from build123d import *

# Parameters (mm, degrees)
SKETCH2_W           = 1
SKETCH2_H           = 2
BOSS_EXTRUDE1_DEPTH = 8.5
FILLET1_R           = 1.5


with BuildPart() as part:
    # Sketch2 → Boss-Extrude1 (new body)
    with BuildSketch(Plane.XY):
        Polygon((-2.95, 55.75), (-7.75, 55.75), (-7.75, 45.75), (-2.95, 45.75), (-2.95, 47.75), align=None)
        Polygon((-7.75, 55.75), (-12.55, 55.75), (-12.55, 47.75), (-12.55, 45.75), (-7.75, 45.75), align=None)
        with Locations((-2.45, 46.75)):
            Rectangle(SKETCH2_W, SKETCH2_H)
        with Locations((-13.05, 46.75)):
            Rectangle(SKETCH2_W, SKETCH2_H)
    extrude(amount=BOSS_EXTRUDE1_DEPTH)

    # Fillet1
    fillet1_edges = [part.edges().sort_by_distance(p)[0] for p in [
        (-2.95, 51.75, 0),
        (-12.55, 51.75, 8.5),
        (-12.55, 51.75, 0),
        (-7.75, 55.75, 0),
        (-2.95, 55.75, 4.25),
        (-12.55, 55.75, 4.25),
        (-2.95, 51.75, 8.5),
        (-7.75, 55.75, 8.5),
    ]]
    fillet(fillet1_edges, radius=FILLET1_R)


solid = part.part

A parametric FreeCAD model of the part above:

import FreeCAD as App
import Part
import Sketcher


def edges_at(feature, points):
    """Names of the edges that pass closest to the given points."""
    edges = feature.Shape.Edges
    near = lambda p: min(range(len(edges)), key=lambda i: edges[i].distToShape(Part.Vertex(*p))[0])
    return sorted({f"Edge{near(p) + 1}" for p in points})

doc = App.newDocument("Part")
body = doc.addObject("PartDesign::Body", "Body")

sketch1 = doc.addObject("Sketcher::SketchObject", "Sketch")
body.addObject(sketch1)
sketch1.AttachmentSupport = (doc.XY_Plane, [""])
sketch1.MapMode = "FlatFace"
sketch1.addGeometry([
    Part.LineSegment(App.Vector(-3, 55.8, 0), App.Vector(-12.6, 55.8, 0)),
    Part.LineSegment(App.Vector(-12.6, 55.8, 0), App.Vector(-12.6, 47.8, 0)),
    Part.LineSegment(App.Vector(-12.6, 47.8, 0), App.Vector(-13.6, 47.8, 0)),
    Part.LineSegment(App.Vector(-13.6, 47.8, 0), App.Vector(-13.6, 45.8, 0)),
    Part.LineSegment(App.Vector(-13.6, 45.8, 0), App.Vector(-1.9, 45.8, 0)),
    Part.LineSegment(App.Vector(-1.9, 45.8, 0), App.Vector(-1.9, 47.8, 0)),
    Part.LineSegment(App.Vector(-1.9, 47.8, 0), App.Vector(-3, 47.8, 0)),
    Part.LineSegment(App.Vector(-3, 47.8, 0), App.Vector(-3, 55.8, 0)),
], False)
sketch1.addConstraint([
    Sketcher.Constraint("Coincident", 0, 2, 1, 1),
    Sketcher.Constraint("Coincident", 1, 2, 2, 1),
    Sketcher.Constraint("Coincident", 2, 2, 3, 1),
    Sketcher.Constraint("Coincident", 3, 2, 4, 1),
    Sketcher.Constraint("Coincident", 4, 2, 5, 1),
    Sketcher.Constraint("Coincident", 5, 2, 6, 1),
    Sketcher.Constraint("Coincident", 6, 2, 7, 1),
    Sketcher.Constraint("Coincident", 7, 2, 0, 1),
    Sketcher.Constraint("Horizontal", 0),
    Sketcher.Constraint("Vertical", 1),
    Sketcher.Constraint("Horizontal", 2),
    Sketcher.Constraint("Vertical", 3),
    Sketcher.Constraint("Horizontal", 4),
    Sketcher.Constraint("Vertical", 5),
    Sketcher.Constraint("Horizontal", 6),
    Sketcher.Constraint("Vertical", 7),
    Sketcher.Constraint("Horizontal", 2, 2, 5, 2),
    Sketcher.Constraint("Equal", 2, 6),
    Sketcher.Constraint("DistanceX", 2, 2, 2, 1, 1.0),
    Sketcher.Constraint("DistanceY", 1, 2, 1, 1, 8.0),
    Sketcher.Constraint("DistanceY", 3, 2, 3, 1, 2.0),
    Sketcher.Constraint("DistanceX", 0, 2, 0, 1, 9.6),
    Sketcher.Constraint("DistanceX", 0, 2, -1, 1, 12.55),
    Sketcher.Constraint("DistanceY", -1, 1, 0, 2, 55.75),
])
pad1 = doc.addObject("PartDesign::Pad", "Pad")
body.addObject(pad1)
pad1.Profile = sketch1
pad1.Length = 8.5
doc.recompute()

fillet = doc.addObject("PartDesign::Fillet", "Fillet")
body.addObject(fillet)
fillet.Base = (pad1, edges_at(pad1, [
    (-2.95, 51.75, 0),
    (-12.55, 51.75, 8.5),
    (-12.55, 51.75, 0),
    (-7.75, 55.75, 0),
    (-2.95, 55.75, 4.25),
    (-12.55, 55.75, 4.25),
    (-2.95, 51.75, 8.5),
    (-7.75, 55.75, 8.5),
]))
fillet.Radius = 1.5

doc.recompute()
